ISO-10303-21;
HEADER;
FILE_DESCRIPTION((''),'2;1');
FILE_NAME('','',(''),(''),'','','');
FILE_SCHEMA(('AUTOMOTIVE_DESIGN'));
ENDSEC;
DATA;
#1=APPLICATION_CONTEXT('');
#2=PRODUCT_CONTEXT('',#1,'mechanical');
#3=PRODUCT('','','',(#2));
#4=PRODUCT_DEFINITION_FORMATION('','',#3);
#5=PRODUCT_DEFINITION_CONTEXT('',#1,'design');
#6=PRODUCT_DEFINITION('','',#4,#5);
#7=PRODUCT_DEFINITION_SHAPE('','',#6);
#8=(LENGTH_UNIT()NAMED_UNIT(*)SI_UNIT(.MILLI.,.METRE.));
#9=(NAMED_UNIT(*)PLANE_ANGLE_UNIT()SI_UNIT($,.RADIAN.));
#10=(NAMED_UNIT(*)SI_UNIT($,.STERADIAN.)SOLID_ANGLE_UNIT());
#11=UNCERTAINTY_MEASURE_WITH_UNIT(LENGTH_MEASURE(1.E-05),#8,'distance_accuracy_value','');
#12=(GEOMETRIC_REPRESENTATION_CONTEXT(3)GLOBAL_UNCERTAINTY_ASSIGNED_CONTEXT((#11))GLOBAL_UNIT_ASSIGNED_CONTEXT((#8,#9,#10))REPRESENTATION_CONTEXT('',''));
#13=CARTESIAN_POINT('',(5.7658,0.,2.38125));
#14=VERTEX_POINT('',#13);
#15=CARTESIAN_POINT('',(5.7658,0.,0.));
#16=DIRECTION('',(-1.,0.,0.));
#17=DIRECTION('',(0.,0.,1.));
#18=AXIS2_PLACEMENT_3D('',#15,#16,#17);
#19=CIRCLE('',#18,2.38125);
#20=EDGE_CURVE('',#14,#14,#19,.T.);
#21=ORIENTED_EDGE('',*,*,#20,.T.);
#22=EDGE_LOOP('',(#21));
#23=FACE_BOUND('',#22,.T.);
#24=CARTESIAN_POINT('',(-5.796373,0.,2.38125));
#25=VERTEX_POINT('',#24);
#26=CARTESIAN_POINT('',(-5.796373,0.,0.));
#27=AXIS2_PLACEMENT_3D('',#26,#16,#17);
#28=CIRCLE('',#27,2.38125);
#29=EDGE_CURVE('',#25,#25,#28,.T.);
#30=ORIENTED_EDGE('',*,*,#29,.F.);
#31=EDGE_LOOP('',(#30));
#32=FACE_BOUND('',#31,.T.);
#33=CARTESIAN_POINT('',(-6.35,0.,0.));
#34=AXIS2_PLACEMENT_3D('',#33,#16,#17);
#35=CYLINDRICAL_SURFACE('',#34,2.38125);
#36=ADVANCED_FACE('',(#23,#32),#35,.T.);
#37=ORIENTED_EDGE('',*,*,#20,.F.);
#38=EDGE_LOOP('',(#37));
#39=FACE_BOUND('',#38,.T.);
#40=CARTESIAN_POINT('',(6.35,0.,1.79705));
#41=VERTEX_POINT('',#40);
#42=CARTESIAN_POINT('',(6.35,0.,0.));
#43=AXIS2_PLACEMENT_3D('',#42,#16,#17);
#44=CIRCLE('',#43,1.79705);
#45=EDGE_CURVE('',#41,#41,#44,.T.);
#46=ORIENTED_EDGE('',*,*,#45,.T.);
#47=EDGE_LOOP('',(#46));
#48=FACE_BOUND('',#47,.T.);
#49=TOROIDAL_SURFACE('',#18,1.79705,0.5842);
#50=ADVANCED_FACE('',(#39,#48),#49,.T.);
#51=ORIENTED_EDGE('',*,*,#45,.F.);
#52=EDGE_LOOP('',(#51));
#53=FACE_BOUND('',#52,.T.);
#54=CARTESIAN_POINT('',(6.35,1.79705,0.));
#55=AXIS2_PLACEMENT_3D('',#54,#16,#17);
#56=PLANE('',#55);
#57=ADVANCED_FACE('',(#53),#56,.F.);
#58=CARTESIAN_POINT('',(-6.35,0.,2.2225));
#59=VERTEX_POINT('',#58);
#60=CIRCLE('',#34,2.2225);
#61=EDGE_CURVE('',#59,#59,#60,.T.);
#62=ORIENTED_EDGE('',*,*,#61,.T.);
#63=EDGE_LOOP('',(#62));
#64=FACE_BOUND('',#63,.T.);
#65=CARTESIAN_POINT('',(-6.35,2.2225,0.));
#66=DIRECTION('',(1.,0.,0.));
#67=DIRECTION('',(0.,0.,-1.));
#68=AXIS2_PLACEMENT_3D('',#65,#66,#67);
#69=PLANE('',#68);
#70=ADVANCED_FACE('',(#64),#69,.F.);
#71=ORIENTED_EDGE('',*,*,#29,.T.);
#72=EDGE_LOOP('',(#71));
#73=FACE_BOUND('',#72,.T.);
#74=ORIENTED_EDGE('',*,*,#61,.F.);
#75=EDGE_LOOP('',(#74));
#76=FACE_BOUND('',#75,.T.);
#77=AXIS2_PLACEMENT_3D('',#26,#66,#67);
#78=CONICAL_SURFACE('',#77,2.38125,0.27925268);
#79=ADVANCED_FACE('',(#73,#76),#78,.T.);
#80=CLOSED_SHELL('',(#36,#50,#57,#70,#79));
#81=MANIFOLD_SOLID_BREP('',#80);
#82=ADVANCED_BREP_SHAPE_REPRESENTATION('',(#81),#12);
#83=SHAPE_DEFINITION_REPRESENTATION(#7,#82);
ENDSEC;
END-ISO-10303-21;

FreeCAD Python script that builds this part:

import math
import FreeCAD as App
import Part
import Sketcher
Q = App.Units.Quantity

doc = App.newDocument("Part")
body = doc.addObject("PartDesign::Body", "Body")

sketch1 = doc.addObject("Sketcher::SketchObject", "Sketch")
body.addObject(sketch1)
sketch1.AttachmentSupport = (doc.XY_Plane, [""])
sketch1.MapMode = "FlatFace"
sketch1.addGeometry(Part.LineSegment(App.Vector(6.3, 0, 0), App.Vector(6.3, 1.8, 0)), False)
sketch1.addGeometry(Part.ArcOfCircle(Part.Circle(App.Vector(5.8, 1.8, 0), App.Vector(0, 0, 1), 0.6), math.radians(0), math.radians(90)), False)
sketch1.addGeometry(Part.LineSegment(App.Vector(5.8, 2.4, 0), App.Vector(-5.8, 2.4, 0)), False)
sketch1.addGeometry(Part.LineSegment(App.Vector(-5.8, 2.4, 0), App.Vector(-6.3, 2.2, 0)), False)
sketch1.addGeometry(Part.LineSegment(App.Vector(-6.3, 2.2, 0), App.Vector(-6.3, 0, 0)), False)
sketch1.addGeometry(Part.LineSegment(App.Vector(-6.3, 0, 0), App.Vector(6.3, 0, 0)), False)
sketch1.addConstraint(Sketcher.Constraint("Tangent", 0, 2, 1, 1))
sketch1.addConstraint(Sketcher.Constraint("Tangent", 1, 2, 2, 1))
sketch1.addConstraint(Sketcher.Constraint("Coincident", 2, 2, 3, 1))
sketch1.addConstraint(Sketcher.Constraint("Coincident", 3, 2, 4, 1))
sketch1.addConstraint(Sketcher.Constraint("Coincident", 4, 2, 5, 1))
sketch1.addConstraint(Sketcher.Constraint("Coincident", 5, 2, 0, 1))
sketch1.addConstraint(Sketcher.Constraint("Vertical", 0))
sketch1.addConstraint(Sketcher.Constraint("Horizontal", 2))
sketch1.addConstraint(Sketcher.Constraint("Vertical", 4))
sketch1.addConstraint(Sketcher.Constraint("Horizontal", 5))
sketch1.addConstraint(Sketcher.Constraint("Symmetric", 4, 2, 5, 2, -1, 1))
sketch1.addConstraint(Sketcher.Constraint("DistanceX", 5, 1, 5, 2, Q("0.5 in")))
sketch1.addConstraint(Sketcher.Constraint("Angle", 3, Q("-164 deg")))
sketch1.addConstraint(Sketcher.Constraint("Radius", 1, Q("0.023 in")))
sketch1.addConstraint(Sketcher.Constraint("DistanceY", 4, 2, 4, 1, Q("0.0875 in")))
sketch1.addConstraint(Sketcher.Constraint("DistanceY", -1, 1, 1, 2, Q("0.09375 in")))
revolution = doc.addObject("PartDesign::Revolution", "Revolution")
body.addObject(revolution)
revolution.Profile = sketch1
revolution.ReferenceAxis = (sketch1, ["H_Axis"])
revolution.Angle = 360

doc.recompute()
